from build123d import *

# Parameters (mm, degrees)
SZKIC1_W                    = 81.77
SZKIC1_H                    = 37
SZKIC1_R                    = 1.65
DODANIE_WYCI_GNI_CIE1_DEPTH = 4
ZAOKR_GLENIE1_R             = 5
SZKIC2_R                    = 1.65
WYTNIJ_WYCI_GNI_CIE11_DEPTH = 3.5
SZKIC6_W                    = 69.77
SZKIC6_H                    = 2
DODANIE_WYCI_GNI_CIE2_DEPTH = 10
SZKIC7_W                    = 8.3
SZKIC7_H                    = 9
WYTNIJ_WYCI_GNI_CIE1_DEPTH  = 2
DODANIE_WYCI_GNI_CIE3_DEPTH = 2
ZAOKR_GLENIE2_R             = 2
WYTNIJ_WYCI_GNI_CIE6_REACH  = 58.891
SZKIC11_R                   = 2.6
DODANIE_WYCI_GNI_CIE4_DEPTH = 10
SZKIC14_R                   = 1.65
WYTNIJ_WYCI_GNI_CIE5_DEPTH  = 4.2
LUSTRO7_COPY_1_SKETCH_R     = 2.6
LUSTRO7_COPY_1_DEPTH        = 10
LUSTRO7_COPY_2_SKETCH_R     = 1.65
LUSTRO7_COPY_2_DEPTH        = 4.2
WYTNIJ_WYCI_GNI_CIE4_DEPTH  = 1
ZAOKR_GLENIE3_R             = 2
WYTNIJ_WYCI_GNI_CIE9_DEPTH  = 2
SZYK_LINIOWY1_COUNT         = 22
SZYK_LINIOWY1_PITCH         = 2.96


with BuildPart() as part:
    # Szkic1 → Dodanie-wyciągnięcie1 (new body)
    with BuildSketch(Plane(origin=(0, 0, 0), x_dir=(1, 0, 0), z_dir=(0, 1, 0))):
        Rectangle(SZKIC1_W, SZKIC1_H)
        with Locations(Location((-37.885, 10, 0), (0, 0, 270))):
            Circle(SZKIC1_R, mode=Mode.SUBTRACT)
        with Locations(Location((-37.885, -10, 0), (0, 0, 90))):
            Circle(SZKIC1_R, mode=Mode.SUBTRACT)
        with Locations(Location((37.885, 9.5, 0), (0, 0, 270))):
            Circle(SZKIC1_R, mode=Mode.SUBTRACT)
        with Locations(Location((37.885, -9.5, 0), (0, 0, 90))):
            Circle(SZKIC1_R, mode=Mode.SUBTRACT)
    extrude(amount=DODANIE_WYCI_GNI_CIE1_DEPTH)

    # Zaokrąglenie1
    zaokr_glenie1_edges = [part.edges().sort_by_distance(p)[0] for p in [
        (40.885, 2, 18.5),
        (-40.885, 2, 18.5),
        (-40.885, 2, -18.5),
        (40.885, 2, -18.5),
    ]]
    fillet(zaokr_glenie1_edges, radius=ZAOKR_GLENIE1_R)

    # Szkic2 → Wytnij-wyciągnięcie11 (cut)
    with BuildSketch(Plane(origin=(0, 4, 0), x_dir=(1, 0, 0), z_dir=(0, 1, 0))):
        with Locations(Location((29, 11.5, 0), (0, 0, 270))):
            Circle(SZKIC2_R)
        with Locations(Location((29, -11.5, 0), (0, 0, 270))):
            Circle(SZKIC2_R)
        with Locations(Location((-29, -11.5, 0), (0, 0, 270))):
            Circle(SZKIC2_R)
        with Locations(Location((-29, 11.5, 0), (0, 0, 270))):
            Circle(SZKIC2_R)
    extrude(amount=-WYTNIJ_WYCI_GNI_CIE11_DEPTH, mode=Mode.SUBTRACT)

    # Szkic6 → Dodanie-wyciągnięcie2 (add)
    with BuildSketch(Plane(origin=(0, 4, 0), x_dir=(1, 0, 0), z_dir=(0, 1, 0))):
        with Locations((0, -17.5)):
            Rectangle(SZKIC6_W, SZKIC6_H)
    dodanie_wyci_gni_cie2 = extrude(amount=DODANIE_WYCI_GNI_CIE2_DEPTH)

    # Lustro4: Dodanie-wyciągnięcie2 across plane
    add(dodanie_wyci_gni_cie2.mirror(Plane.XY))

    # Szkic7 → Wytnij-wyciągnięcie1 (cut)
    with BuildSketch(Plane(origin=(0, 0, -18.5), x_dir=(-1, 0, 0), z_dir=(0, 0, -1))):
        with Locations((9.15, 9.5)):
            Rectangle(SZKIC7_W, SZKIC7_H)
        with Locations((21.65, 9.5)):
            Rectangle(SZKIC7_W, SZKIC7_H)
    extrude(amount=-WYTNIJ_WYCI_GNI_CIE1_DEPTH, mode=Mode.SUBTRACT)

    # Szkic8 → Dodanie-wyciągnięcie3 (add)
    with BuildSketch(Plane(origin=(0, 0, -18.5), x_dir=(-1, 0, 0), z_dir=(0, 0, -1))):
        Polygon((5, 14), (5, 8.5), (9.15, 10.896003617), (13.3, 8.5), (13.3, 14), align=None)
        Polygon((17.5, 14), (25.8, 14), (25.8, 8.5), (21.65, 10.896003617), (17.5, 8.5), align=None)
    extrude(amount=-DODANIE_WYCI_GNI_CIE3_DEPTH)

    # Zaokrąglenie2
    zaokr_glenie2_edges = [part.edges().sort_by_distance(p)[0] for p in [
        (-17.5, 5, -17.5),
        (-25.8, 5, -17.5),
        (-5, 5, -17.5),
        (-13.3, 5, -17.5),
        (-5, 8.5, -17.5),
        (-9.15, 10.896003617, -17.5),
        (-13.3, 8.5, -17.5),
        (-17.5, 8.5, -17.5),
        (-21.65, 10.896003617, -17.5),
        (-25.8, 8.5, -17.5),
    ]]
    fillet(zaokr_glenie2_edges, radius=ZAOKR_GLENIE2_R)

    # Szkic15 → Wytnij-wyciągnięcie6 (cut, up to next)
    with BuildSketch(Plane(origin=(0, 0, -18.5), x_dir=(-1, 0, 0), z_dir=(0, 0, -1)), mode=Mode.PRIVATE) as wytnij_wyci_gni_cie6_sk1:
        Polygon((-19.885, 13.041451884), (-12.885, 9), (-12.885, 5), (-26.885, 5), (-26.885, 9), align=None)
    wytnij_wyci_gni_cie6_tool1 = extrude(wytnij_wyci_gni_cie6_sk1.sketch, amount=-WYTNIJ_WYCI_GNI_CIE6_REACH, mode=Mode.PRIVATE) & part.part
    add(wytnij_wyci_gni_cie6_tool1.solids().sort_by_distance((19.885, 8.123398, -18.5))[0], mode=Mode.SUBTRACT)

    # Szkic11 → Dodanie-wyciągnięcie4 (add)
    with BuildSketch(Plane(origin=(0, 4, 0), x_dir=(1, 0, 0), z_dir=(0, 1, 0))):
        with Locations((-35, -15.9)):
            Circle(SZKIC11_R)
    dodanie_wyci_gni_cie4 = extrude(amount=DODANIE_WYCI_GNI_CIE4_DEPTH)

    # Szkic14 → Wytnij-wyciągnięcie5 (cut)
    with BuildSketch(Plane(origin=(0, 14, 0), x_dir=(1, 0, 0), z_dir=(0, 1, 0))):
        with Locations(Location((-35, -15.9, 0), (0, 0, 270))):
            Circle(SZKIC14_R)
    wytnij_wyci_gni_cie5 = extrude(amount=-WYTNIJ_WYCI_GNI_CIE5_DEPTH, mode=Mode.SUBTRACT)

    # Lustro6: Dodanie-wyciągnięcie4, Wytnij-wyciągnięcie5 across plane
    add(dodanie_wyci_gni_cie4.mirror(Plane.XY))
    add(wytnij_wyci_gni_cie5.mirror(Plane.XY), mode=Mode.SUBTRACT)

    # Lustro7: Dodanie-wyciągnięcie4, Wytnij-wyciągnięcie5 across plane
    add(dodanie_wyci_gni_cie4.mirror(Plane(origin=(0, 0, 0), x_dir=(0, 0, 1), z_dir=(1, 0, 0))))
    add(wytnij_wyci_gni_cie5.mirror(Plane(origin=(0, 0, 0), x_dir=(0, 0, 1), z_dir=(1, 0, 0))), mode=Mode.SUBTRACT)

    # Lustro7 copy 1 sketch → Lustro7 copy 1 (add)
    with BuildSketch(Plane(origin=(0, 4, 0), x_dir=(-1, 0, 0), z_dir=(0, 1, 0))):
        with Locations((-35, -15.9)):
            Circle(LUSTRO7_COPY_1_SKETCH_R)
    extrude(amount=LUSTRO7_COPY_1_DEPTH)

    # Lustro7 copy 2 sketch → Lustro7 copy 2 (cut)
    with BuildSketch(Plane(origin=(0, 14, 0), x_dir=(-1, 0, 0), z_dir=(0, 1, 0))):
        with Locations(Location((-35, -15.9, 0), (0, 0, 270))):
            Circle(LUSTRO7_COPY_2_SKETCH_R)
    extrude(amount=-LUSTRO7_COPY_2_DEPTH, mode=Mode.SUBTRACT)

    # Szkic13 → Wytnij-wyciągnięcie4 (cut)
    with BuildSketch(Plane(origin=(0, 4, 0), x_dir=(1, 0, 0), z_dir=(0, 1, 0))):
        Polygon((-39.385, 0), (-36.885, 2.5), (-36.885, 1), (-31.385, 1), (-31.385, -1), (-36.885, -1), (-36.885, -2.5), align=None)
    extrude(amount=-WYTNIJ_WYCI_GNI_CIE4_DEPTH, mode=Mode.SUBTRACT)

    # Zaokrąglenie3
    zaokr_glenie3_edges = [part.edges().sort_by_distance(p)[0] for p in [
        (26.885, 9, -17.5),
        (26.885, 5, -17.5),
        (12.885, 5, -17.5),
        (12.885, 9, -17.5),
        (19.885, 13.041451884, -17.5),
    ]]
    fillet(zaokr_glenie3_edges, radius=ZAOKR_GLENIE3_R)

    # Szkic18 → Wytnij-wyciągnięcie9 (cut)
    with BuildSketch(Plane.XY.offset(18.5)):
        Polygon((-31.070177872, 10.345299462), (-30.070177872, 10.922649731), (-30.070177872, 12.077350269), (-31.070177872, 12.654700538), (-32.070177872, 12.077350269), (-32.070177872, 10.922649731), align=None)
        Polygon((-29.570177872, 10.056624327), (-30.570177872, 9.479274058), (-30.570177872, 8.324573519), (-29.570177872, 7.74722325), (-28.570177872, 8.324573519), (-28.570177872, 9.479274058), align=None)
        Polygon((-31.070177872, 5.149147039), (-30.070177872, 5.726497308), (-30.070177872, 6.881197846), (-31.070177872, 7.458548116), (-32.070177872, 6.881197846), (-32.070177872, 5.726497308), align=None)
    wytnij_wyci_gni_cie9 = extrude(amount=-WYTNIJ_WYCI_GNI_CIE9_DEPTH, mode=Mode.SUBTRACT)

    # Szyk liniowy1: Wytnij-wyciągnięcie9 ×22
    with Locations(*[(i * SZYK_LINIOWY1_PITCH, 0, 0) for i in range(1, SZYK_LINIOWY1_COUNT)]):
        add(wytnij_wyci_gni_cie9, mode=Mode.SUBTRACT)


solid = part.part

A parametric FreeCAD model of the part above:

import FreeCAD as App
import Part
import Sketcher
from FreeCAD import Vector
Q = App.Units.Quantity


def edges_at(feature, points):
    """Names of the edges that pass closest to the given points."""
    edges = feature.Shape.Edges
    near = lambda p: min(range(len(edges)), key=lambda i: edges[i].distToShape(Part.Vertex(*p))[0])
    return sorted({f"Edge{near(p) + 1}" for p in points})


def add_polygon(sketch, points):
    """Adds a closed chain of lines whose ends are joined by coincident constraints."""
    first, n = sketch.GeometryCount, len(points)
    for a, b in zip(points, points[1:] + points[:1]):
        sketch.addGeometry(Part.LineSegment(App.Vector(*a, 0), App.Vector(*b, 0)), False)
    for i in range(n):
        sketch.addConstraint(Sketcher.Constraint("Coincident", first + i, 2, first + (i + 1) % n, 1))

doc = App.newDocument("Part")
body = doc.addObject("PartDesign::Body", "Body")

# Sketch on XZ plane
sketch1 = body.newObject("Sketcher::SketchObject", "Sketch")
sketch1.AttachmentSupport = (doc.getObject("XZ_Plane"), [""])
sketch1.MapMode = "FlatFace"
add_polygon(sketch1, [(-40.885, -18.5), (-40.885, 18.5), (40.885, 18.5), (40.885, -18.5)])  # lines 0-3
sketch1.addGeometry(Part.Circle(Vector(-37.885, 10, 0), Vector(0, 0, 1), 1.65), False)  # 4
sketch1.addGeometry(Part.Circle(Vector(37.885, 9.5, 0), Vector(0, 0, 1), 1.65), False)  # 5
sketch1.addGeometry(Part.Circle(Vector(-37.885, -10, 0), Vector(0, 0, 1), 1.65), False)  # 6
sketch1.addGeometry(Part.Circle(Vector(37.885, -9.5, 0), Vector(0, 0, 1), 1.65), False)  # 7
sketch1.addConstraint(Sketcher.Constraint("Vertical", 0))
sketch1.addConstraint(Sketcher.Constraint("Horizontal", 1))
sketch1.addConstraint(Sketcher.Constraint("Vertical", 2))
sketch1.addConstraint(Sketcher.Constraint("Horizontal", 3))
sketch1.addConstraint(Sketcher.Constraint("Equal", 4, 5))
sketch1.addConstraint(Sketcher.Constraint("Equal", 5, 6))
sketch1.addConstraint(Sketcher.Constraint("Equal", 6, 7))
sketch1.addConstraint(Sketcher.Constraint("Symmetric", 0, 2, 2, 2, -1, 1))
sketch1.addConstraint(Sketcher.Constraint("Symmetric", 4, 3, 6, 3, -1))
sketch1.addConstraint(Sketcher.Constraint("Symmetric", 5, 3, 7, 3, -1))
sketch1.addConstraint(Sketcher.Constraint("Diameter", 4, Q("3.3 mm")))
sketch1.addConstraint(Sketcher.Constraint("DistanceY", 0, 1, 0, 2, Q("37 mm")))
sketch1.addConstraint(Sketcher.Constraint("DistanceY", -1, 1, 4, 3, Q("10 mm")))
sketch1.addConstraint(Sketcher.Constraint("DistanceY", 7, 3, 5, 3, Q("19 mm")))
sketch1.addConstraint(Sketcher.Constraint("DistanceX", 0, 2, 4, 3, Q("3 mm")))
sketch1.addConstraint(Sketcher.Constraint("DistanceX", 5, 3, 1, 2, Q("3 mm")))
sketch1.addConstraint(Sketcher.Constraint("DistanceX", 1, 1, 1, 2, Q("81.77 mm")))
pad1 = body.newObject("PartDesign::Pad", "Pad")
pad1.Profile = sketch1
pad1.Length = 4
pad1.Reversed = True
doc.recompute()

fillet = body.newObject("PartDesign::Fillet", "Fillet")
fillet.Base = (pad1, edges_at(pad1, [
    (40.885, 2, 18.5),
    (-40.885, 2, 18.5),
    (-40.885, 2, -18.5),
    (40.885, 2, -18.5),
]))
fillet.Radius = 5

# Sketch on XZ plane
sketch2 = body.newObject("Sketcher::SketchObject", "Sketch001")
sketch2.AttachmentSupport = (doc.getObject("XZ_Plane"), [""])
sketch2.MapMode = "FlatFace"
sketch2.AttachmentOffset = App.Placement(Vector(0, 0, -4), App.Rotation())
sketch2.addGeometry(Part.Circle(Vector(29, -11.5, 0), Vector(0, 0, 1), 1.65), False)
sketch2.addGeometry(Part.Circle(Vector(29, 11.5, 0), Vector(0, 0, 1), 1.65), False)
sketch2.addGeometry(Part.Circle(Vector(-29, 11.5, 0), Vector(0, 0, 1), 1.65), False)
sketch2.addGeometry(Part.Circle(Vector(-29, -11.5, 0), Vector(0, 0, 1), 1.65), False)
sketch2.addConstraint(Sketcher.Constraint("Equal", 0, 1))
sketch2.addConstraint(Sketcher.Constraint("Equal", 1, 2))
sketch2.addConstraint(Sketcher.Constraint("Equal", 2, 3))
sketch2.addConstraint(Sketcher.Constraint("Symmetric", 0, 3, 2, 3, -1, 1))
sketch2.addConstraint(Sketcher.Constraint("Symmetric", 1, 3, 3, 3, -1, 1))
sketch2.addConstraint(Sketcher.Constraint("Symmetric", 1, 3, 2, 3, -2))
sketch2.addConstraint(Sketcher.Constraint("Diameter", 0, Q("3.3 mm")))
sketch2.addConstraint(Sketcher.Constraint("DistanceX", -1, 1, 0, 3, Q("29 mm")))
sketch2.addConstraint(Sketcher.Constraint("DistanceY", 0, 3, 1, 3, Q("23 mm")))
pocket1 = body.newObject("PartDesign::Pocket", "Pocket")
pocket1.Profile = sketch2
pocket1.Length = 3.5
pocket1.Reversed = True

# Sketch on XZ plane
sketch3 = body.newObject("Sketcher::SketchObject", "Sketch002")
sketch3.AttachmentSupport = (doc.getObject("XZ_Plane"), [""])
sketch3.MapMode = "FlatFace"
sketch3.AttachmentOffset = App.Placement(Vector(0, 0, -4), App.Rotation())
add_polygon(sketch3, [(-34.885, 16.5), (-34.885, 18.5), (34.885, 18.5), (34.885, 16.5)])  # lines 0-3
sketch3.addConstraint(Sketcher.Constraint("Vertical", 0))
sketch3.addConstraint(Sketcher.Constraint("Horizontal", 1))
sketch3.addConstraint(Sketcher.Constraint("Vertical", 2))
sketch3.addConstraint(Sketcher.Constraint("Horizontal", 3))
sketch3.addConstraint(Sketcher.Constraint("DistanceY", 0, 1, 0, 2, Q("2 mm")))
sketch3.addConstraint(Sketcher.Constraint("DistanceX", 1, 1, 1, 2, Q("69.77 mm")))
sketch3.addConstraint(Sketcher.Constraint("DistanceY", -1, 1, 0, 2, Q("18.5 mm")))
sketch3.addConstraint(Sketcher.Constraint("DistanceX", 0, 2, -1, 1, Q("34.885 mm")))
pad2 = body.newObject("PartDesign::Pad", "Pad001")
pad2.Profile = sketch3
pad2.Length = 10
pad2.Reversed = True
doc.recompute()

mirrored = body.newObject("PartDesign::Mirrored", "Mirrored")
mirrored.Originals = [pad2]
mirrored.MirrorPlane = (doc.getObject("XY_Plane"), [""])
body.Tip = mirrored

# Sketch on XY plane
sketch4 = body.newObject("Sketcher::SketchObject", "Sketch003")
sketch4.AttachmentSupport = (doc.getObject("XY_Plane"), [""])
sketch4.MapMode = "FlatFace"
sketch4.AttachmentOffset = App.Placement(Vector(0, 0, -18.5), App.Rotation())
add_polygon(sketch4, [(-5, 14), (-5, 5), (-13.3, 5), (-13.3, 14)])  # lines 0-3
add_polygon(sketch4, [(-17.5, 14), (-17.5, 5), (-25.8, 5), (-25.8, 14)])  # lines 4-7
sketch4.addConstraint(Sketcher.Constraint("Vertical", 0))
sketch4.addConstraint(Sketcher.Constraint("Horizontal", 1))
sketch4.addConstraint(Sketcher.Constraint("Vertical", 2))
sketch4.addConstraint(Sketcher.Constraint("Horizontal", 3))
sketch4.addConstraint(Sketcher.Constraint("Vertical", 4))
sketch4.addConstraint(Sketcher.Constraint("Horizontal", 5))
sketch4.addConstraint(Sketcher.Constraint("Vertical", 6))
sketch4.addConstraint(Sketcher.Constraint("Horizontal", 7))
sketch4.addConstraint(Sketcher.Constraint("Horizontal", 1, 2, 4, 2))
sketch4.addConstraint(Sketcher.Constraint("Horizontal", 3, 2, 6, 2))
sketch4.addConstraint(Sketcher.Constraint("Equal", 3, 5))
sketch4.addConstraint(Sketcher.Constraint("DistanceY", 0, 2, 0, 1, Q("9 mm")))
sketch4.addConstraint(Sketcher.Constraint("DistanceX", 1, 2, 1, 1, Q("8.3 mm")))
sketch4.addConstraint(Sketcher.Constraint("DistanceX", 0, 2, -1, 1, Q("5 mm")))
sketch4.addConstraint(Sketcher.Constraint("DistanceY", -1, 1, 0, 2, Q("5 mm")))
sketch4.addConstraint(Sketcher.Constraint("DistanceX", 4, 2, -1, 1, Q("17.5 mm")))
pocket2 = body.newObject("PartDesign::Pocket", "Pocket001")
pocket2.Profile = sketch4
pocket2.Length = 2
pocket2.Reversed = True

# Sketch on XY plane
sketch5 = body.newObject("Sketcher::SketchObject", "Sketch004")
sketch5.AttachmentSupport = (doc.getObject("XY_Plane"), [""])
sketch5.MapMode = "FlatFace"
sketch5.AttachmentOffset = App.Placement(Vector(0, 0, -18.5), App.Rotation())
add_polygon(sketch5, [(-5, 14), (-5, 8.5), (-9.15, 10.896004), (-13.3, 8.5), (-13.3, 14)])  # lines 0-4
add_polygon(sketch5, [(-25.8, 14), (-17.5, 14), (-17.5, 8.5), (-21.65, 10.896004), (-25.8, 8.5)])  # lines 5-9
sketch5.addConstraint(Sketcher.Constraint("Vertical", 0))
sketch5.addConstraint(Sketcher.Constraint("Vertical", 3))
sketch5.addConstraint(Sketcher.Constraint("Horizontal", 4))
sketch5.addConstraint(Sketcher.Constraint("Horizontal", 5))
sketch5.addConstraint(Sketcher.Constraint("Vertical", 6))
sketch5.addConstraint(Sketcher.Constraint("Vertical", 9))
sketch5.addConstraint(Sketcher.Constraint("Parallel", 1, 7))
sketch5.addConstraint(Sketcher.Constraint("Parallel", 2, 8))
sketch5.addConstraint(Sketcher.Constraint("Horizontal", 0, 2, 2, 2))
sketch5.addConstraint(Sketcher.Constraint("Horizontal", 4, 2, 5, 2))
sketch5.addConstraint(Sketcher.Constraint("Horizontal", 2, 2, 6, 2))
sketch5.addConstraint(Sketcher.Constraint("Horizontal", 1, 2, 7, 2))
sketch5.addConstraint(Sketcher.Constraint("Horizontal", 6, 2, 8, 2))
sketch5.addConstraint(Sketcher.Constraint("Equal", 1, 2))
sketch5.addConstraint(Sketcher.Constraint("Angle", 1, Q("150 deg")))
sketch5.addConstraint(Sketcher.Constraint("DistanceX", 4, 1, 4, 2, Q("8.3 mm")))
sketch5.addConstraint(Sketcher.Constraint("DistanceY", 0, 2, 0, 1, Q("5.5 mm")))
sketch5.addConstraint(Sketcher.Constraint("DistanceX", 0, 2, -1, 1, Q("5 mm")))
sketch5.addConstraint(Sketcher.Constraint("DistanceY", -1, 1, 3, 2, Q("14 mm")))
sketch5.addConstraint(Sketcher.Constraint("DistanceX", 5, 2, -1, 1, Q("17.5 mm")))
pad3 = body.newObject("PartDesign::Pad", "Pad002")
pad3.Profile = sketch5
pad3.Length = 2
doc.recompute()

fillet2 = body.newObject("PartDesign::Fillet", "Fillet001")
fillet2.Base = (pad3, edges_at(pad3, [
    (-17.5, 5, -17.5),
    (-25.8, 5, -17.5),
    (-5, 5, -17.5),
    (-13.3, 5, -17.5),
    (-5, 8.5, -17.5),
    (-9.15, 10.896, -17.5),
    (-13.3, 8.5, -17.5),
    (-17.5, 8.5, -17.5),
    (-21.65, 10.896, -17.5),
    (-25.8, 8.5, -17.5),
]))
fillet2.Radius = 2

# Sketch on XY plane
sketch6 = body.newObject("Sketcher::SketchObject", "Sketch005")
sketch6.AttachmentSupport = (doc.getObject("XY_Plane"), [""])
sketch6.MapMode = "FlatFace"
sketch6.AttachmentOffset = App.Placement(Vector(0, 0, -18.5), App.Rotation())
add_polygon(sketch6, [(12.885, 9), (19.885, 13.041452), (26.885, 9), (26.885, 5), (12.885, 5)])  # lines 0-4
sketch6.addConstraint(Sketcher.Constraint("Vertical", 2))
sketch6.addConstraint(Sketcher.Constraint("Horizontal", 3))
sketch6.addConstraint(Sketcher.Constraint("Vertical", 4))
sketch6.addConstraint(Sketcher.Constraint("Horizontal", 1, 2, 4, 2))
sketch6.addConstraint(Sketcher.Constraint("Equal", 0, 1))
sketch6.addConstraint(Sketcher.Constraint("DistanceX", 3, 2, 3, 1, Q("14 mm")))
sketch6.addConstraint(Sketcher.Constraint("DistanceY", 2, 2, 2, 1, Q("4 mm")))
sketch6.addConstraint(Sketcher.Constraint("Angle", 0, Q("30 deg")))
sketch6.addConstraint(Sketcher.Constraint("DistanceY", -1, 1, 1, 2, Q("9 mm")))
sketch6.addConstraint(Sketcher.Constraint("DistanceX", -1, 1, 0, 2, Q("19.885 mm")))
pocket3 = body.newObject("PartDesign::Pocket", "Pocket002")
pocket3.Profile = sketch6
pocket3.Type = "UpToFirst"
pocket3.Reversed = True

# Sketch on XZ plane
sketch7 = body.newObject("Sketcher::SketchObject", "Sketch006")
sketch7.AttachmentSupport = (doc.getObject("XZ_Plane"), [""])
sketch7.MapMode = "FlatFace"
sketch7.AttachmentOffset = App.Placement(Vector(0, 0, -4), App.Rotation())
sketch7.addGeometry(Part.Circle(Vector(-35, 15.9, 0), Vector(0, 0, 1), 2.6), False)
sketch7.addConstraint(Sketcher.Constraint("Diameter", 0, Q("5.2 mm")))
sketch7.addConstraint(Sketcher.Constraint("DistanceX", 0, 3, -1, 1, Q("35 mm")))
sketch7.addConstraint(Sketcher.Constraint("DistanceY", -1, 1, 0, 3, Q("15.9 mm")))
pad4 = body.newObject("PartDesign::Pad", "Pad003")
pad4.Profile = sketch7
pad4.Length = 10
pad4.Reversed = True

# Sketch on XZ plane
sketch8 = body.newObject("Sketcher::SketchObject", "Sketch007")
sketch8.AttachmentSupport = (doc.getObject("XZ_Plane"), [""])
sketch8.MapMode = "FlatFace"
sketch8.AttachmentOffset = App.Placement(Vector(0, 0, -14), App.Rotation())
sketch8.addGeometry(Part.Circle(Vector(-35, 15.9, 0), Vector(0, 0, 1), 1.65), False)
sketch8.addConstraint(Sketcher.Constraint("Diameter", 0, Q("3.3 mm")))
sketch8.addConstraint(Sketcher.Constraint("DistanceX", 0, 3, -1, 1, Q("35 mm")))
sketch8.addConstraint(Sketcher.Constraint("DistanceY", -1, 1, 0, 3, Q("15.9 mm")))
pocket4 = body.newObject("PartDesign::Pocket", "Pocket003")
pocket4.Profile = sketch8
pocket4.Length = 4.2
pocket4.Reversed = True
doc.recompute()

mirrored2 = body.newObject("PartDesign::Mirrored", "Mirrored001")
mirrored2.Originals = [pad4, pocket4]
mirrored2.MirrorPlane = (doc.getObject("XY_Plane"), [""])
body.Tip = mirrored2
doc.recompute()

mirrored3 = body.newObject("PartDesign::Mirrored", "Mirrored002")
mirrored3.Originals = [pad4, pocket4]
mirrored3.MirrorPlane = (doc.getObject("YZ_Plane"), [""])
body.Tip = mirrored3

# Sketch on XZ plane
sketch9 = body.newObject("Sketcher::SketchObject", "Sketch008")
sketch9.AttachmentSupport = (doc.getObject("XZ_Plane"), [""])
sketch9.MapMode = "FlatFace"
sketch9.AttachmentOffset = App.Placement(Vector(0, 0, -4), App.Rotation())
sketch9.addGeometry(Part.Circle(Vector(35, -15.9, 0), Vector(0, 0, 1), 2.6), False)
sketch9.addConstraint(Sketcher.Constraint("Diameter", 0, Q("5.2 mm")))
sketch9.addConstraint(Sketcher.Constraint("DistanceX", -1, 1, 0, 3, Q("35 mm")))
sketch9.addConstraint(Sketcher.Constraint("DistanceY", 0, 3, -1, 1, Q("15.9 mm")))
pad5 = body.newObject("PartDesign::Pad", "Pad004")
pad5.Profile = sketch9
pad5.Length = 10
pad5.Reversed = True

# Sketch on XZ plane
sketch10 = body.newObject("Sketcher::SketchObject", "Sketch009")
sketch10.AttachmentSupport = (doc.getObject("XZ_Plane"), [""])
sketch10.MapMode = "FlatFace"
sketch10.AttachmentOffset = App.Placement(Vector(0, 0, -14), App.Rotation())
sketch10.addGeometry(Part.Circle(Vector(35, -15.9, 0), Vector(0, 0, 1), 1.65), False)
sketch10.addConstraint(Sketcher.Constraint("Diameter", 0, Q("3.3 mm")))
sketch10.addConstraint(Sketcher.Constraint("DistanceX", -1, 1, 0, 3, Q("35 mm")))
sketch10.addConstraint(Sketcher.Constraint("DistanceY", 0, 3, -1, 1, Q("15.9 mm")))
pocket5 = body.newObject("PartDesign::Pocket", "Pocket004")
pocket5.Profile = sketch10
pocket5.Length = 4.2
pocket5.Reversed = True

# Sketch on XZ plane
sketch11 = body.newObject("Sketcher::SketchObject", "Sketch010")
sketch11.AttachmentSupport = (doc.getObject("XZ_Plane"), [""])
sketch11.MapMode = "FlatFace"
sketch11.AttachmentOffset = App.Placement(Vector(0, 0, -4), App.Rotation())
add_polygon(sketch11, [(-36.885, -2.5), (-39.385, 0), (-36.885, 2.5), (-36.885, 1), (-31.385, 1), (-31.385, -1), (-36.885, -1)])  # lines 0-6
sketch11.addConstraint(Sketcher.Constraint("Vertical", 2))
sketch11.addConstraint(Sketcher.Constraint("Horizontal", 3))
sketch11.addConstraint(Sketcher.Constraint("Vertical", 4))
sketch11.addConstraint(Sketcher.Constraint("Horizontal", 5))
sketch11.addConstraint(Sketcher.Constraint("Vertical", 6))
sketch11.addConstraint(Sketcher.Constraint("Symmetric", 2, 2, 5, 2, -1))
sketch11.addConstraint(Sketcher.Constraint("PointOnObject", 0, 2, -1))
sketch11.addConstraint(Sketcher.Constraint("Perpendicular", 0, 1))
sketch11.addConstraint(Sketcher.Constraint("Equal", 2, 6))
sketch11.addConstraint(Sketcher.Constraint("DistanceY", 4, 2, 4, 1, Q("2 mm")))
sketch11.addConstraint(Sketcher.Constraint("DistanceX", 3, 1, 3, 2, Q("5.5 mm")))
sketch11.addConstraint(Sketcher.Constraint("DistanceY", 2, 2, 2, 1, Q("1.5 mm")))
sketch11.addConstraint(Sketcher.Constraint("DistanceX", 0, 2, -1, 1, Q("39.385 mm")))
pocket6 = body.newObject("PartDesign::Pocket", "Pocket005")
pocket6.Profile = sketch11
pocket6.Length = 1
pocket6.Reversed = True
doc.recompute()

fillet3 = body.newObject("PartDesign::Fillet", "Fillet002")
fillet3.Base = (pocket6, edges_at(pocket6, [
    (26.885, 9, -17.5),
    (26.885, 5, -17.5),
    (12.885, 5, -17.5),
    (12.885, 9, -17.5),
    (19.885, 13.041, -17.5),
]))
fillet3.Radius = 2

# Sketch on XY plane
sketch12 = body.newObject("Sketcher::SketchObject", "Sketch011")
sketch12.AttachmentSupport = (doc.getObject("XY_Plane"), [""])
sketch12.MapMode = "FlatFace"
sketch12.AttachmentOffset = App.Placement(Vector(0, 0, 18.5), App.Rotation())
add_polygon(sketch12, [(-31.070178, 10.345299), (-30.070178, 10.92265), (-30.070178, 12.07735), (-31.070178, 12.654701), (-32.070178, 12.07735), (-32.070178, 10.92265)])  # lines 0-5
add_polygon(sketch12, [(-29.570178, 10.056624), (-30.570178, 9.479274), (-30.570178, 8.324574), (-29.570178, 7.747223), (-28.570178, 8.324574), (-28.570178, 9.479274)])  # lines 6-11
add_polygon(sketch12, [(-31.070178, 5.149147), (-30.070178, 5.726497), (-30.070178, 6.881198), (-31.070178, 7.458548), (-32.070178, 6.881198), (-32.070178, 5.726497)])  # lines 12-17
sketch12.addConstraint(Sketcher.Constraint("Vertical", 1))
sketch12.addConstraint(Sketcher.Constraint("Vertical", 4))
sketch12.addConstraint(Sketcher.Constraint("Vertical", 7))
sketch12.addConstraint(Sketcher.Constraint("Vertical", 10))
sketch12.addConstraint(Sketcher.Constraint("Vertical", 13))
sketch12.addConstraint(Sketcher.Constraint("Vertical", 16))
sketch12.addConstraint(Sketcher.Constraint("Parallel", 0, 3))
sketch12.addConstraint(Sketcher.Constraint("Parallel", 2, 5))
sketch12.addConstraint(Sketcher.Constraint("Parallel", 3, 6))
sketch12.addConstraint(Sketcher.Constraint("Parallel", 5, 8))
sketch12.addConstraint(Sketcher.Constraint("Parallel", 6, 9))
sketch12.addConstraint(Sketcher.Constraint("Parallel", 8, 11))
sketch12.addConstraint(Sketcher.Constraint("Parallel", 9, 12))
sketch12.addConstraint(Sketcher.Constraint("Parallel", 11, 14))
sketch12.addConstraint(Sketcher.Constraint("Parallel", 12, 15))
sketch12.addConstraint(Sketcher.Constraint("Parallel", 14, 17))
sketch12.addConstraint(Sketcher.Constraint("Horizontal", 1, 2, 3, 2))
sketch12.addConstraint(Sketcher.Constraint("Horizontal", 0, 2, 4, 2))
sketch12.addConstraint(Sketcher.Constraint("Horizontal", 7, 2, 9, 2))
sketch12.addConstraint(Sketcher.Constraint("Horizontal", 6, 2, 10, 2))
sketch12.addConstraint(Sketcher.Constraint("Horizontal", 13, 2, 15, 2))
sketch12.addConstraint(Sketcher.Constraint("Horizontal", 12, 2, 16, 2))
sketch12.addConstraint(Sketcher.Constraint("Vertical", 2, 2, 5, 2))
sketch12.addConstraint(Sketcher.Constraint("Vertical", 1, 2, 12, 2))
sketch12.addConstraint(Sketcher.Constraint("Vertical", 5, 2, 14, 2))
sketch12.addConstraint(Sketcher.Constraint("Equal", 4, 7))
sketch12.addConstraint(Sketcher.Constraint("Equal", 10, 13))
sketch12.addConstraint(Sketcher.Constraint("Equal", 5, 6))
sketch12.addConstraint(Sketcher.Constraint("Angle", 0, Q("30 deg")))
sketch12.addConstraint(Sketcher.Constraint("DistanceX", 2, 2, 1, 2, Q("1 mm")))
sketch12.addConstraint(Sketcher.Constraint("DistanceX", 5, 2, 6, 2, Q("0.5 mm")))
sketch12.addConstraint(Sketcher.Constraint("DistanceY", 1, 1, 1, 2, Q("1.154701 mm")))
sketch12.addConstraint(Sketcher.Constraint("DistanceY", -1, 1, 2, 2, Q("12.654701 mm")))
sketch12.addConstraint(Sketcher.Constraint("DistanceY", -1, 1, 14, 2, Q("7.458548 mm")))
sketch12.addConstraint(Sketcher.Constraint("DistanceX", 0, 2, -1, 1, Q("30.070178 mm")))
sketch12.addConstraint(Sketcher.Constraint("DistanceY", -1, 1, 6, 2, Q("9.479274 mm")))
pocket7 = body.newObject("PartDesign::Pocket", "Pocket006")
pocket7.Profile = sketch12
pocket7.Length = 2
doc.recompute()

linearpattern = body.newObject("PartDesign::LinearPattern", "LinearPattern")
linearpattern.Originals = [pocket7]
linearpattern.Direction = (doc.getObject("X_Axis"), [""])
linearpattern.Mode = "offset"
linearpattern.Offset = 2.96
linearpattern.Occurrences = 22
body.Tip = linearpattern

doc.recompute()
